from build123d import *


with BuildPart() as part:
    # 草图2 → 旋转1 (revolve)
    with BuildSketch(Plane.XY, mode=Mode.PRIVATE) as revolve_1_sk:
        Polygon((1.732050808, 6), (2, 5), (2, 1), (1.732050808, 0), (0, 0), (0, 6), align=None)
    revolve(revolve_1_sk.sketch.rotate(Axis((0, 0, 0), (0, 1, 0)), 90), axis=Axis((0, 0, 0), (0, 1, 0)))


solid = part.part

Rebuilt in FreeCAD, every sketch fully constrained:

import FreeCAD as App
import Part
import Sketcher
Q = App.Units.Quantity


def add_polygon(sketch, points):
    """Adds a closed chain of lines whose ends are joined by coincident constraints."""
    first, n = sketch.GeometryCount, len(points)
    for a, b in zip(points, points[1:] + points[:1]):
        sketch.addGeometry(Part.LineSegment(App.Vector(*a, 0), App.Vector(*b, 0)), False)
    for i in range(n):
        sketch.addConstraint(Sketcher.Constraint("Coincident", first + i, 2, first + (i + 1) % n, 1))

doc = App.newDocument("Part")
body = doc.addObject("PartDesign::Body", "Body")

sketch1 = body.newObject("Sketcher::SketchObject", "Sketch")
sketch1.AttachmentSupport = (doc.getObject("XY_Plane"), [""])
sketch1.MapMode = "FlatFace"
add_polygon(sketch1, [(2, 5), (1.7, 6), (0, 6), (0, 0), (1.7, 0), (2, 1)])
sketch1.addConstraint(Sketcher.Constraint("Horizontal", 1))
sketch1.addConstraint(Sketcher.Constraint("Vertical", 2))
sketch1.addConstraint(Sketcher.Constraint("Horizontal", 3))
sketch1.addConstraint(Sketcher.Constraint("Vertical", 5))
sketch1.addConstraint(Sketcher.Constraint("Coincident", 2, 2, -1, 1))
sketch1.addConstraint(Sketcher.Constraint("Vertical", 0, 2, 3, 2))
sketch1.addConstraint(Sketcher.Constraint("Equal", 0, 4))
sketch1.addConstraint(Sketcher.Constraint("DistanceY", 2, 2, 2, 1, Q("6 mm")))
sketch1.addConstraint(Sketcher.Constraint("DistanceY", 5, 1, 5, 2, Q("4 mm")))
sketch1.addConstraint(Sketcher.Constraint("Angle", 0, Q("105 deg")))
sketch1.addConstraint(Sketcher.Constraint("DistanceX", -1, 1, 4, 2, Q("2 mm")))
revolution = body.newObject("PartDesign::Revolution", "Revolution")
revolution.Profile = sketch1
revolution.ReferenceAxis = (sketch1, ["V_Axis"])
revolution.Angle = 360

doc.recompute()
